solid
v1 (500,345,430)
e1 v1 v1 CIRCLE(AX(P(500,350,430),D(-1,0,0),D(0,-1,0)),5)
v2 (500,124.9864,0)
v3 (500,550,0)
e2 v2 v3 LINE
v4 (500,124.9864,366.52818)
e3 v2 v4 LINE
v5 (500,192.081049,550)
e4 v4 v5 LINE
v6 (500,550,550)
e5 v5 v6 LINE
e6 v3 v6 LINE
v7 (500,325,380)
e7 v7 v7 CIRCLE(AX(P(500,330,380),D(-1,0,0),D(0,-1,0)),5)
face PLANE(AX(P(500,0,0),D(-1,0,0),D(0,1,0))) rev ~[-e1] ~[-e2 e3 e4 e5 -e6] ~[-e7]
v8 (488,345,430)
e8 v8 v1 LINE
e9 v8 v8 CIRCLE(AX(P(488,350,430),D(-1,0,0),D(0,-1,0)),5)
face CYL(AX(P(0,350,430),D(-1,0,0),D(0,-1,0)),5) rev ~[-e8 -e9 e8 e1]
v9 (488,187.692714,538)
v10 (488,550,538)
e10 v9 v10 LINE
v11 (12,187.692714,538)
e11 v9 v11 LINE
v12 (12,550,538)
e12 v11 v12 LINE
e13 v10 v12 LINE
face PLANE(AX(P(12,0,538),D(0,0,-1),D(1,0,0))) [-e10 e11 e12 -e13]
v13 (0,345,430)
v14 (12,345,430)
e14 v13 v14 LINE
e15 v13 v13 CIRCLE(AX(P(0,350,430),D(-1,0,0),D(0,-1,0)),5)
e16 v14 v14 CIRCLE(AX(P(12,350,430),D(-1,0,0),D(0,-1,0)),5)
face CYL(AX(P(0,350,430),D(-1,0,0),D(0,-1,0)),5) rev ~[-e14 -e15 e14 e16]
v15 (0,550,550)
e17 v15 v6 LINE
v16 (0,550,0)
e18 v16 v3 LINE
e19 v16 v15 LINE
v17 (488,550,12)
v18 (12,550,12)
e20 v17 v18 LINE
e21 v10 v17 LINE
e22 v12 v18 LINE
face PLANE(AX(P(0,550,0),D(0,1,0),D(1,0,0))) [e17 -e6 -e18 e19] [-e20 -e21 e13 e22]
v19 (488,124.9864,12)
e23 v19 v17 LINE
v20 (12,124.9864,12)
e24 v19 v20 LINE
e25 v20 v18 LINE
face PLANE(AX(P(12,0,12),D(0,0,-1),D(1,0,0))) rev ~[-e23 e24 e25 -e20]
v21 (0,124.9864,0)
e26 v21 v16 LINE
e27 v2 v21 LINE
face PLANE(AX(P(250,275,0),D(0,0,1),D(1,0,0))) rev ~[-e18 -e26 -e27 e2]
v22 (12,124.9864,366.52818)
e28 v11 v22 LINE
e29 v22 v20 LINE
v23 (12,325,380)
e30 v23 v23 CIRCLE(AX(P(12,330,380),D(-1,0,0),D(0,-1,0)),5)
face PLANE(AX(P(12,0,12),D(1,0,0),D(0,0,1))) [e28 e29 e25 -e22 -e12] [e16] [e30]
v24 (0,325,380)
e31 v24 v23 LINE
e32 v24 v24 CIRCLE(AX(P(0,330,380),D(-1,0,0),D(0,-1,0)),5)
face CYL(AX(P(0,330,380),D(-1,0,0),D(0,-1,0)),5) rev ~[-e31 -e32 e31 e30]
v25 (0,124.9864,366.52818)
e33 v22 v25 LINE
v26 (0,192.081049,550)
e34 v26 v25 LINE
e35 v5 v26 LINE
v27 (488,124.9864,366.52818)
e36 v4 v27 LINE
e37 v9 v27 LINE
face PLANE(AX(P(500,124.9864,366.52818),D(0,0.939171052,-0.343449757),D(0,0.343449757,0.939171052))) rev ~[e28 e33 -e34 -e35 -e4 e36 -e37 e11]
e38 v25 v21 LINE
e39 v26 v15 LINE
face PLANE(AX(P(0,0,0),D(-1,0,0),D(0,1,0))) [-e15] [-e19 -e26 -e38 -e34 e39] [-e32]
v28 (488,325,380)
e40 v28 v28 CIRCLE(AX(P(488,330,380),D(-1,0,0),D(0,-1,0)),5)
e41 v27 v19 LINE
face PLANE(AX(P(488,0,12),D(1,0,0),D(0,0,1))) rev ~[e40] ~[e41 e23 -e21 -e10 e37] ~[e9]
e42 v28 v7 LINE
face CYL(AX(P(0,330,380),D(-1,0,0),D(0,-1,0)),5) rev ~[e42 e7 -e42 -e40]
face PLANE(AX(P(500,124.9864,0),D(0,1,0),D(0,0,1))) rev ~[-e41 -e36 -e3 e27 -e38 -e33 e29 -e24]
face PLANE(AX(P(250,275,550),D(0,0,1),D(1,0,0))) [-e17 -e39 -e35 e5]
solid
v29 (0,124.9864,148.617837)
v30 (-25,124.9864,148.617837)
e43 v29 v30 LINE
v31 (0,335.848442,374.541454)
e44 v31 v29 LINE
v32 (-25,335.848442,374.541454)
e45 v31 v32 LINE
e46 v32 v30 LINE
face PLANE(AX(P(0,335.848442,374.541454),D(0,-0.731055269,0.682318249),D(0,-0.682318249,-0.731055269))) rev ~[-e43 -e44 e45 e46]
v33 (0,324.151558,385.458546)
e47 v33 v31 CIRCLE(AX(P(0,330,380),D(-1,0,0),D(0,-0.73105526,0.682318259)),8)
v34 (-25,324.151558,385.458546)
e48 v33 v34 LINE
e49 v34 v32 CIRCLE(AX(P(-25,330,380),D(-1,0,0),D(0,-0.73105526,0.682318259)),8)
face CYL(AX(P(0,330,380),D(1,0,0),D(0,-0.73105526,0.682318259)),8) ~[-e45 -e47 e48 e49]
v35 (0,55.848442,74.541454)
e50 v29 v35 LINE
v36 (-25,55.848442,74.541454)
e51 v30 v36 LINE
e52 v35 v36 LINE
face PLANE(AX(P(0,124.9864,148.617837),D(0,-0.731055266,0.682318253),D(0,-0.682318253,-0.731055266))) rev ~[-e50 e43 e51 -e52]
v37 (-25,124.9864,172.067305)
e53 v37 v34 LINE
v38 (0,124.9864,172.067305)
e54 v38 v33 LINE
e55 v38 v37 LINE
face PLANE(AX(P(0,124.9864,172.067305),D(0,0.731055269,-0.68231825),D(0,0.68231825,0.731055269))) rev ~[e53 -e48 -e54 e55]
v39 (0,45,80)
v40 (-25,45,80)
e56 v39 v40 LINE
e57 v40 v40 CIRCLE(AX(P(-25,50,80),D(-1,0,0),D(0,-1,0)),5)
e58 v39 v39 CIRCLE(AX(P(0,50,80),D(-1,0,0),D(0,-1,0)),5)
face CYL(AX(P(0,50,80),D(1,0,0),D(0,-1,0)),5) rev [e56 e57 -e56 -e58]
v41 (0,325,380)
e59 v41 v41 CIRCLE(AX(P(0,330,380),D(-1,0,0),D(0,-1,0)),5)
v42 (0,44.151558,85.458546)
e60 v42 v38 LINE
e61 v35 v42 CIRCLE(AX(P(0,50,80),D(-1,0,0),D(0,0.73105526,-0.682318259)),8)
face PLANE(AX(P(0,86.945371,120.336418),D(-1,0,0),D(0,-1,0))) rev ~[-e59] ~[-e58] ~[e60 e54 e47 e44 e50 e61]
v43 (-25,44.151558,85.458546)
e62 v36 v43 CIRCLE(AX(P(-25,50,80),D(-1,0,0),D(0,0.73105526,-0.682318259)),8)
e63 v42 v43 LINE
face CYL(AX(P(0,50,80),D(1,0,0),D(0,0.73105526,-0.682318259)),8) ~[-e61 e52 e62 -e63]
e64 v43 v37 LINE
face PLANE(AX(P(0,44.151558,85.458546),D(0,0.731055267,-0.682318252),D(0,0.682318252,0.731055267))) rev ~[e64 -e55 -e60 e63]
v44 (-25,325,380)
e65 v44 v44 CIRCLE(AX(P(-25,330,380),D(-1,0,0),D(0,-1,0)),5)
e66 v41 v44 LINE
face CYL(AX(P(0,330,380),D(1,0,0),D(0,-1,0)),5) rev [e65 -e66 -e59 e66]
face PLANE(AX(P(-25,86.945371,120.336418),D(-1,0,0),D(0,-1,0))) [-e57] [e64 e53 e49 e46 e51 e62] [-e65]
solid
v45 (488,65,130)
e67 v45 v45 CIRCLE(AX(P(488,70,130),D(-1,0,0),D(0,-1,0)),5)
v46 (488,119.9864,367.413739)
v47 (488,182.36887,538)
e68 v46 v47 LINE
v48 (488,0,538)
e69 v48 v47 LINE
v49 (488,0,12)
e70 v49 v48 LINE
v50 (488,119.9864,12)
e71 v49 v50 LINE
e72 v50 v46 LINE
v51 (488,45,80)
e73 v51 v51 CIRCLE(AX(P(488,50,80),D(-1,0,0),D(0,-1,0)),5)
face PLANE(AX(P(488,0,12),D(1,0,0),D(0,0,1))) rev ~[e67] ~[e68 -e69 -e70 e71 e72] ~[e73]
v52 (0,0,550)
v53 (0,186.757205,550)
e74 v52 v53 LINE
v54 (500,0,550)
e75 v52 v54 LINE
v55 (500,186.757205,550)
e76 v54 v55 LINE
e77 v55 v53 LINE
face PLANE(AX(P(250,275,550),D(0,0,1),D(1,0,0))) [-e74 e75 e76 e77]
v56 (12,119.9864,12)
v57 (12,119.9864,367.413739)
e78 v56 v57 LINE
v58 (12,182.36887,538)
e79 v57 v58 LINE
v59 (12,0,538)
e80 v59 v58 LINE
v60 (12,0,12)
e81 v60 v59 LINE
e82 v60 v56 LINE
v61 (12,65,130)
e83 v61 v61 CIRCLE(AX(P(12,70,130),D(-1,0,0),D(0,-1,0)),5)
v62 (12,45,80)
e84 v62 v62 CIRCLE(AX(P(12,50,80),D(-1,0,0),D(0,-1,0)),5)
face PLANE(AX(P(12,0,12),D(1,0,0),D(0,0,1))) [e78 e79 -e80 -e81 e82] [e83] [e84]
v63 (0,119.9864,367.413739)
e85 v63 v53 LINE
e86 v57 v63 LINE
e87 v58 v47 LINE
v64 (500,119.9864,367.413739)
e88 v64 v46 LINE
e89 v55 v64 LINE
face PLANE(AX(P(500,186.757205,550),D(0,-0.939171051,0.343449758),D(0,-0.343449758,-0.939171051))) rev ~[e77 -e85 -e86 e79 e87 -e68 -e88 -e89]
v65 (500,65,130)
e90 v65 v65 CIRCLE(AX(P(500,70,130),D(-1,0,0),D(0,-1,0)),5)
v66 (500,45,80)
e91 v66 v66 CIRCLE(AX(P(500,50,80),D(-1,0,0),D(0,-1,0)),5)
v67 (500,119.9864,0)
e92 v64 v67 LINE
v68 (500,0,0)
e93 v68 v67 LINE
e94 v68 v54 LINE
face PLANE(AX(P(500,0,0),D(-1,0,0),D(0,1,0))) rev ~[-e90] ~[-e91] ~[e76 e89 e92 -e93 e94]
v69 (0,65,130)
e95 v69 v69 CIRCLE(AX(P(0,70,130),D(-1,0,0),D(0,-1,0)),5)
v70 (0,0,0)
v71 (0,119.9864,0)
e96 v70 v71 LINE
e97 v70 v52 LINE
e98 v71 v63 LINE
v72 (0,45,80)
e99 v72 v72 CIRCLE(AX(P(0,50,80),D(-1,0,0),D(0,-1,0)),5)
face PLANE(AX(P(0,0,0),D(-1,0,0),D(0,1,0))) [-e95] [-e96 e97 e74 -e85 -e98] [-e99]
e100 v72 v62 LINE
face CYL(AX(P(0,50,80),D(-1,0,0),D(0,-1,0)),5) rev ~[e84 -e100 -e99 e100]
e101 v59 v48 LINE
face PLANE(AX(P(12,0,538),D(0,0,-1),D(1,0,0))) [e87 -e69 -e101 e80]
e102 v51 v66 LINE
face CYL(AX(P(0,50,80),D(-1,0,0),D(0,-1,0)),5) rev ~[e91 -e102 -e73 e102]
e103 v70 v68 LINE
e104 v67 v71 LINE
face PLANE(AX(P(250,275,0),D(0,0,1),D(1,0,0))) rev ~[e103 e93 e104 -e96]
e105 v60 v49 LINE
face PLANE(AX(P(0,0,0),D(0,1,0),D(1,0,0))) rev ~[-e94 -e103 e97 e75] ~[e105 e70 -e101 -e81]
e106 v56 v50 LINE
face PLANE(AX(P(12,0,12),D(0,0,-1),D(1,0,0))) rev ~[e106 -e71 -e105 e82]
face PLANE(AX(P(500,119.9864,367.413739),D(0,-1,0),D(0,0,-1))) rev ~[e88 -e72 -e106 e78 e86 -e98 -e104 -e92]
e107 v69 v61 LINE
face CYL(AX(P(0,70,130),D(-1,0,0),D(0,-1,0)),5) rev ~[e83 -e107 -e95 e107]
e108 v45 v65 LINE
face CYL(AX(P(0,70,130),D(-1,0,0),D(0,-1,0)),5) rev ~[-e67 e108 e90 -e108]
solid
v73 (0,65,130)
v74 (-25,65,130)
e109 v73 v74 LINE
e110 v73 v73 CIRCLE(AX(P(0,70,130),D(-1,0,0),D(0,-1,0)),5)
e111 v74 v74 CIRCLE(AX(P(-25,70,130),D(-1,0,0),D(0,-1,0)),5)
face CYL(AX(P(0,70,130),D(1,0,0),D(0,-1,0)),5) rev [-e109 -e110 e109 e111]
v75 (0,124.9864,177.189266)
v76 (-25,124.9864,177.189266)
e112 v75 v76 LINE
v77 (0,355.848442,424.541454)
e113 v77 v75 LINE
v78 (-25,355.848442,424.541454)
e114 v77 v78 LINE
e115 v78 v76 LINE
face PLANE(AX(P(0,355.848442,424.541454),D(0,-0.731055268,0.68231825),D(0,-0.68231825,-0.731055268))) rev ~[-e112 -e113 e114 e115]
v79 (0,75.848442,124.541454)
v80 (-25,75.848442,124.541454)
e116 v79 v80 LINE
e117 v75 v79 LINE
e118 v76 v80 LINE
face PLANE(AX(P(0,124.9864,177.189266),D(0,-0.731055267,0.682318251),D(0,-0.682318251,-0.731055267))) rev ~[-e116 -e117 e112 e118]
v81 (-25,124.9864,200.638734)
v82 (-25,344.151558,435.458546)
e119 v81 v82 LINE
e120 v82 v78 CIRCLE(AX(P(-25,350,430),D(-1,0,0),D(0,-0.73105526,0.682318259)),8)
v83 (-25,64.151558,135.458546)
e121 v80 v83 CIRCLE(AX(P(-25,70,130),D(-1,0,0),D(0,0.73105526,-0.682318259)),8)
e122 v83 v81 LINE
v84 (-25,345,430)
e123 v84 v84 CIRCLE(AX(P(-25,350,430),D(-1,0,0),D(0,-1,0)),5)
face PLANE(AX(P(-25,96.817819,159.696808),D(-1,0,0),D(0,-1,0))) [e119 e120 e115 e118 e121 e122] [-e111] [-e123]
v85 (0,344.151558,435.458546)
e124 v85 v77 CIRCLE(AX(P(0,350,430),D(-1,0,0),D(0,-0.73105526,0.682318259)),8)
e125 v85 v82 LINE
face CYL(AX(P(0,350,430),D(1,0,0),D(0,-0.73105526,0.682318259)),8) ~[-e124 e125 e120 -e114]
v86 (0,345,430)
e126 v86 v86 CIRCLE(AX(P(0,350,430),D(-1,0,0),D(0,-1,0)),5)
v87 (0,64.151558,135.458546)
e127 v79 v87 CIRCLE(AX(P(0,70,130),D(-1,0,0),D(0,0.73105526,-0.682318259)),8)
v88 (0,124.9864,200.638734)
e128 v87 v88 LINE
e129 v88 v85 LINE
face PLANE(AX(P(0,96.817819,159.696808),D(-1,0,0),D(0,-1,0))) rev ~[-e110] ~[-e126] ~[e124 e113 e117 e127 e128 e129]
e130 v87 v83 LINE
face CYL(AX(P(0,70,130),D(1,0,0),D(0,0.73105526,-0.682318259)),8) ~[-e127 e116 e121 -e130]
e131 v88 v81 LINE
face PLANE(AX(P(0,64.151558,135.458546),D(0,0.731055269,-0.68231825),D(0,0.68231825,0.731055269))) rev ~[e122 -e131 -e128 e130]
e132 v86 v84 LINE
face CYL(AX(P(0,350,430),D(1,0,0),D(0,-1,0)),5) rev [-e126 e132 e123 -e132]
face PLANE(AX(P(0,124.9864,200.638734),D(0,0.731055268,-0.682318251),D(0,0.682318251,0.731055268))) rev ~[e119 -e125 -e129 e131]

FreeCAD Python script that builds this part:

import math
import FreeCAD as App
import Part
import Sketcher
from FreeCAD import Vector
Q = App.Units.Quantity

doc = App.newDocument("Part")
body = doc.addObject("PartDesign::Body", "Body")
body.AllowCompound = True

sketch1 = body.newObject("Sketcher::SketchObject", "Sketch")
sketch1.AttachmentSupport = (doc.getObject("XY_Plane"), [""])
sketch1.MapMode = "FlatFace"
sketch1.addGeometry([
    Part.LineSegment(Vector(0, 550, 0), Vector(0, 0, 0)),
    Part.LineSegment(Vector(0, 0, 0), Vector(500, 0, 0)),
    Part.LineSegment(Vector(500, 0, 0), Vector(500, 550, 0)),
    Part.LineSegment(Vector(500, 550, 0), Vector(0, 550, 0)),
], False)
sketch1.addConstraint([
    Sketcher.Constraint("Coincident", 0, 2, 1, 1),
    Sketcher.Constraint("Coincident", 1, 2, 2, 1),
    Sketcher.Constraint("Coincident", 2, 2, 3, 1),
    Sketcher.Constraint("Coincident", 3, 2, 0, 1),
    Sketcher.Constraint("Vertical", 0),
    Sketcher.Constraint("Horizontal", 1),
    Sketcher.Constraint("Vertical", 2),
    Sketcher.Constraint("Horizontal", 3),
    Sketcher.Constraint("Coincident", 0, 2, -1, 1),
    Sketcher.Constraint("DistanceX", 1, 1, 1, 2, Q("500 mm")),
    Sketcher.Constraint("DistanceY", 0, 2, 0, 1, Q("550 mm")),
])
pad1 = body.newObject("PartDesign::Pad", "Pad")
pad1.Profile = sketch1
pad1.Length = 550

sketch2 = body.newObject("Sketcher::SketchObject", "Sketch001")
sketch2.AttachmentSupport = (doc.getObject("YZ_Plane"), [""])
sketch2.MapMode = "FlatFace"
sketch2.AttachmentOffset = App.Placement(Vector(0, 0, 500), App.Rotation())
sketch2.addGeometry([
    Part.LineSegment(Vector(119.9864, 367.413739, 0), Vector(119.9864, 0, 0)),
    Part.LineSegment(Vector(119.9864, 0, 0), Vector(124.9864, 0, 0)),
    Part.LineSegment(Vector(124.9864, 0, 0), Vector(124.9864, 366.52818, 0)),
    Part.LineSegment(Vector(124.9864, 366.52818, 0), Vector(192.081049, 550, 0)),
    Part.LineSegment(Vector(192.081049, 550, 0), Vector(186.757205, 550, 0)),
    Part.LineSegment(Vector(186.757205, 550, 0), Vector(119.9864, 367.413739, 0)),
], False)
sketch2.addConstraint([
    Sketcher.Constraint("Coincident", 0, 2, 1, 1),
    Sketcher.Constraint("Coincident", 1, 2, 2, 1),
    Sketcher.Constraint("Coincident", 2, 2, 3, 1),
    Sketcher.Constraint("Coincident", 3, 2, 4, 1),
    Sketcher.Constraint("Coincident", 4, 2, 5, 1),
    Sketcher.Constraint("Coincident", 5, 2, 0, 1),
    Sketcher.Constraint("Vertical", 0),
    Sketcher.Constraint("Horizontal", 1),
    Sketcher.Constraint("Vertical", 2),
    Sketcher.Constraint("Horizontal", 4),
    Sketcher.Constraint("PointOnObject", 0, 2, -1),
    Sketcher.Constraint("Parallel", 3, 5),
    Sketcher.Constraint("DistanceX", 1, 1, 1, 2, Q("5 mm")),
    Sketcher.Constraint("DistanceY", -1, 1, 3, 2, Q("550 mm")),
    Sketcher.Constraint("DistanceY", 0, 2, 0, 1, Q("367.413739 mm")),
    Sketcher.Constraint("DistanceY", 2, 1, 2, 2, Q("366.52818 mm")),
    Sketcher.Constraint("DistanceX", -1, 1, 0, 2, Q("119.9864 mm")),
    Sketcher.Constraint("DistanceX", -1, 1, 3, 2, Q("192.081049 mm")),
])
pocket1 = body.newObject("PartDesign::Pocket", "Pocket")
pocket1.Profile = sketch2
pocket1.Length = 588

sketch3 = body.newObject("Sketcher::SketchObject", "Sketch002")
sketch3.AttachmentSupport = (doc.getObject("XZ_Plane"), [""])
sketch3.MapMode = "FlatFace"
sketch3.addGeometry([
    Part.LineSegment(Vector(12, 538, 0), Vector(12, 12, 0)),
    Part.LineSegment(Vector(12, 12, 0), Vector(488, 12, 0)),
    Part.LineSegment(Vector(488, 12, 0), Vector(488, 538, 0)),
    Part.LineSegment(Vector(488, 538, 0), Vector(12, 538, 0)),
], False)
sketch3.addConstraint([
    Sketcher.Constraint("Coincident", 0, 2, 1, 1),
    Sketcher.Constraint("Coincident", 1, 2, 2, 1),
    Sketcher.Constraint("Coincident", 2, 2, 3, 1),
    Sketcher.Constraint("Coincident", 3, 2, 0, 1),
    Sketcher.Constraint("Vertical", 0),
    Sketcher.Constraint("Horizontal", 1),
    Sketcher.Constraint("Vertical", 2),
    Sketcher.Constraint("Horizontal", 3),
    Sketcher.Constraint("DistanceX", 1, 1, 1, 2, Q("476 mm")),
    Sketcher.Constraint("DistanceY", 0, 2, 0, 1, Q("526 mm")),
    Sketcher.Constraint("DistanceX", -1, 1, 0, 2, Q("12 mm")),
    Sketcher.Constraint("DistanceY", -1, 1, 0, 2, Q("12 mm")),
])
pocket2 = body.newObject("PartDesign::Pocket", "Pocket001")
pocket2.Profile = sketch3
pocket2.Type = "ThroughAll"

sketch4 = body.newObject("Sketcher::SketchObject", "Sketch003")
sketch4.AttachmentSupport = (doc.getObject("YZ_Plane"), [""])
sketch4.MapMode = "FlatFace"
sketch4.addGeometry([
    Part.Circle(Vector(350, 430, 0), Vector(0, 0, 1), 5),
    Part.Circle(Vector(330, 380, 0), Vector(0, 0, 1), 5),
    Part.Circle(Vector(70, 130, 0), Vector(0, 0, 1), 5),
    Part.Circle(Vector(50, 80, 0), Vector(0, 0, 1), 5),
], False)
sketch4.addConstraint([
    Sketcher.Constraint("Equal", 0, 1),
    Sketcher.Constraint("Equal", 1, 2),
    Sketcher.Constraint("Equal", 2, 3),
    Sketcher.Constraint("Diameter", 0, Q("10 mm")),
    Sketcher.Constraint("DistanceX", -1, 1, 0, 3, Q("350 mm")),
    Sketcher.Constraint("DistanceY", -1, 1, 0, 3, Q("430 mm")),
    Sketcher.Constraint("DistanceX", -1, 1, 1, 3, Q("330 mm")),
    Sketcher.Constraint("DistanceY", -1, 1, 1, 3, Q("380 mm")),
    Sketcher.Constraint("DistanceX", -1, 1, 2, 3, Q("70 mm")),
    Sketcher.Constraint("DistanceY", -1, 1, 2, 3, Q("130 mm")),
    Sketcher.Constraint("DistanceX", -1, 1, 3, 3, Q("50 mm")),
    Sketcher.Constraint("DistanceY", -1, 1, 3, 3, Q("80 mm")),
])
pocket3 = body.newObject("PartDesign::Pocket", "Pocket002")
pocket3.Profile = sketch4
pocket3.Length = 1105
pocket3.Reversed = True
body2 = doc.addObject("PartDesign::Body", "Body001")
body2.AllowCompound = True

sketch5 = body2.newObject("Sketcher::SketchObject", "Sketch004")
sketch5.AttachmentSupport = (doc.getObject("YZ_Plane001"), [""])
sketch5.MapMode = "FlatFace"
sketch5.addGeometry([
    Part.LineSegment(Vector(64.151558, 135.458546, 0), Vector(124.9864, 200.638734, 0)),
    Part.LineSegment(Vector(124.9864, 200.638734, 0), Vector(344.151558, 435.458546, 0)),
    Part.ArcOfCircle(Part.Circle(Vector(350, 430, 0), Vector(0, 0, 1), 8), math.radians(-43.025067), math.radians(136.974933)),
    Part.LineSegment(Vector(355.848442, 424.541454, 0), Vector(124.9864, 177.189266, 0)),
    Part.LineSegment(Vector(124.9864, 177.189266, 0), Vector(75.848442, 124.541454, 0)),
    Part.ArcOfCircle(Part.Circle(Vector(70, 130, 0), Vector(0, 0, 1), 8), math.radians(136.974933), math.radians(316.974933)),
    Part.Circle(Vector(70, 130, 0), Vector(0, 0, 1), 5),
    Part.Circle(Vector(350, 430, 0), Vector(0, 0, 1), 5),
    Part.LineSegment(Vector(44.151558, 85.458546, 0), Vector(124.9864, 172.067305, 0)),
    Part.LineSegment(Vector(124.9864, 172.067305, 0), Vector(324.151558, 385.458546, 0)),
    Part.ArcOfCircle(Part.Circle(Vector(330, 380, 0), Vector(0, 0, 1), 8), math.radians(-43.025067), math.radians(136.974933)),
    Part.LineSegment(Vector(335.848442, 374.541454, 0), Vector(124.9864, 148.617837, 0)),
    Part.LineSegment(Vector(124.9864, 148.617837, 0), Vector(55.848442, 74.541454, 0)),
    Part.ArcOfCircle(Part.Circle(Vector(50, 80, 0), Vector(0, 0, 1), 8), math.radians(136.974933), math.radians(316.974933)),
    Part.Circle(Vector(50, 80, 0), Vector(0, 0, 1), 5),
    Part.Circle(Vector(330, 380, 0), Vector(0, 0, 1), 5),
], False)
sketch5.addConstraint([
    Sketcher.Constraint("Coincident", 0, 2, 1, 1),
    Sketcher.Constraint("Tangent", 1, 2, 2, 2),
    Sketcher.Constraint("Tangent", 2, 1, 3, 1),
    Sketcher.Constraint("Coincident", 3, 2, 4, 1),
    Sketcher.Constraint("Tangent", 4, 2, 5, 2),
    Sketcher.Constraint("Tangent", 5, 1, 0, 1),
    Sketcher.Constraint("Coincident", 8, 2, 9, 1),
    Sketcher.Constraint("Tangent", 9, 2, 10, 2),
    Sketcher.Constraint("Tangent", 10, 1, 11, 1),
    Sketcher.Constraint("Coincident", 11, 2, 12, 1),
    Sketcher.Constraint("Tangent", 12, 2, 13, 2),
    Sketcher.Constraint("Tangent", 13, 1, 8, 1),
    Sketcher.Constraint("Coincident", 6, 3, 5, 3),
    Sketcher.Constraint("Coincident", 7, 3, 2, 3),
    Sketcher.Constraint("Coincident", 14, 3, 13, 3),
    Sketcher.Constraint("Coincident", 15, 3, 10, 3),
    Sketcher.Constraint("Equal", 2, 5),
    Sketcher.Constraint("Equal", 6, 7),
    Sketcher.Constraint("Equal", 5, 10),
    Sketcher.Constraint("Equal", 10, 13),
    Sketcher.Constraint("Equal", 7, 14),
    Sketcher.Constraint("Equal", 14, 15),
    Sketcher.Constraint("Parallel", 0, 1),
    Sketcher.Constraint("Parallel", 1, 3),
    Sketcher.Constraint("Parallel", 4, 8),
    Sketcher.Constraint("Parallel", 8, 9),
    Sketcher.Constraint("Parallel", 9, 11),
    Sketcher.Constraint("Vertical", 0, 2, 3, 2),
    Sketcher.Constraint("Vertical", 3, 2, 8, 2),
    Sketcher.Constraint("Vertical", 8, 2, 11, 2),
    Sketcher.Constraint("Diameter", 6, Q("10 mm")),
    Sketcher.Constraint("Radius", 2, Q("8 mm")),
    Sketcher.Constraint("DistanceX", -1, 1, 2, 3, Q("350 mm")),
    Sketcher.Constraint("DistanceY", -1, 1, 2, 3, Q("430 mm")),
    Sketcher.Constraint("DistanceX", -1, 1, 5, 3, Q("70 mm")),
    Sketcher.Constraint("DistanceY", -1, 1, 5, 3, Q("130 mm")),
    Sketcher.Constraint("DistanceX", -1, 1, 10, 3, Q("330 mm")),
    Sketcher.Constraint("DistanceY", -1, 1, 10, 3, Q("380 mm")),
    Sketcher.Constraint("DistanceX", -1, 1, 13, 3, Q("50 mm")),
    Sketcher.Constraint("DistanceX", -1, 1, 0, 2, Q("124.9864 mm")),
])
pad2 = body2.newObject("PartDesign::Pad", "Pad001")
pad2.Profile = sketch5
pad2.Length = 25
pad2.Reversed = True

doc.recompute()
